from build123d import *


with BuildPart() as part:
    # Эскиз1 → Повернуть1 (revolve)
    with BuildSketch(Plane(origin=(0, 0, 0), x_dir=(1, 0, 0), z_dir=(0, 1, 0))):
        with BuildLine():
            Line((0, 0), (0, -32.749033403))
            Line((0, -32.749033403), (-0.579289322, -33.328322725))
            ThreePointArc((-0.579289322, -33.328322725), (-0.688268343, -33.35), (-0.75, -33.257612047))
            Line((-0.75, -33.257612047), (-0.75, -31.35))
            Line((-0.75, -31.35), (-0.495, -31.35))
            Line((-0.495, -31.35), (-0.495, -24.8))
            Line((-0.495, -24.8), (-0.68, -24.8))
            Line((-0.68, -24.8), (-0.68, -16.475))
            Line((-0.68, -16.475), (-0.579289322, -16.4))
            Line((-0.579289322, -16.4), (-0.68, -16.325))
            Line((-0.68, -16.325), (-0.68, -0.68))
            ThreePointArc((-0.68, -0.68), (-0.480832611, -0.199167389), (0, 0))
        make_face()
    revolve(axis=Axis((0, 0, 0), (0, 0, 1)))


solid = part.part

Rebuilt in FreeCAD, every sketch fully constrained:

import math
import FreeCAD as App
import Part
import Sketcher
from FreeCAD import Vector
Q = App.Units.Quantity

doc = App.newDocument("Part")
body = doc.addObject("PartDesign::Body", "Body")

# Sketch on XZ plane
sketch1 = body.newObject("Sketcher::SketchObject", "Sketch")
sketch1.AttachmentSupport = (doc.getObject("XZ_Plane"), [""])
sketch1.MapMode = "FlatFace"
sketch1.addGeometry([
    Part.LineSegment(Vector(0, 32.75, 0), Vector(0, 0, 0)),  # 0
    Part.ArcOfCircle(Part.Circle(Vector(0, 0.68, 0), Vector(0, 0, 1), 0.68), math.radians(-180), math.radians(-90)),  # 1
    Part.LineSegment(Vector(-0.68, 0.68, 0), Vector(-0.68, 16.32, 0)),  # 2
    Part.LineSegment(Vector(-0.68, 16.32, 0), Vector(-0.58, 16.4, 0)),  # 3
    Part.LineSegment(Vector(-0.58, 16.4, 0), Vector(-0.68, 16.48, 0)),  # 4
    Part.LineSegment(Vector(-0.68, 16.48, 0), Vector(-0.68, 24.8, 0)),  # 5
    Part.LineSegment(Vector(-0.68, 24.8, 0), Vector(-0.49, 24.8, 0)),  # 6
    Part.LineSegment(Vector(-0.49, 24.8, 0), Vector(-0.49, 31.35, 0)),  # 7
    Part.LineSegment(Vector(-0.49, 31.35, 0), Vector(-0.75, 31.35, 0)),  # 8
    Part.LineSegment(Vector(-0.75, 31.35, 0), Vector(-0.75, 33.26, 0)),  # 9
    Part.ArcOfCircle(Part.Circle(Vector(-0.65, 33.26, 0), Vector(0, 0, 1), 0.1), math.radians(45), math.radians(180)),  # 10
    Part.LineSegment(Vector(-0.58, 33.33, 0), Vector(0, 32.75, 0)),  # 11
], False)
sketch1.addConstraint([
    Sketcher.Constraint("Coincident", 0, 2, 1, 2),
    Sketcher.Constraint("Tangent", 1, 1, 2, 1),
    Sketcher.Constraint("Coincident", 2, 2, 3, 1),
    Sketcher.Constraint("Coincident", 3, 2, 4, 1),
    Sketcher.Constraint("Coincident", 4, 2, 5, 1),
    Sketcher.Constraint("Coincident", 5, 2, 6, 1),
    Sketcher.Constraint("Coincident", 6, 2, 7, 1),
    Sketcher.Constraint("Coincident", 7, 2, 8, 1),
    Sketcher.Constraint("Coincident", 8, 2, 9, 1),
    Sketcher.Constraint("Tangent", 9, 2, 10, 2),
    Sketcher.Constraint("Tangent", 10, 1, 11, 1),
    Sketcher.Constraint("Coincident", 11, 2, 0, 1),
    Sketcher.Constraint("Vertical", 0),
    Sketcher.Constraint("Vertical", 2),
    Sketcher.Constraint("Vertical", 5),
    Sketcher.Constraint("Horizontal", 6),
    Sketcher.Constraint("Vertical", 7),
    Sketcher.Constraint("Horizontal", 8),
    Sketcher.Constraint("Vertical", 9),
    Sketcher.Constraint("Coincident", 0, 2, -1, 1),
    Sketcher.Constraint("PointOnObject", 1, 3, -2),
    Sketcher.Constraint("Vertical", 2, 2, 4, 2),
    Sketcher.Constraint("Vertical", 3, 2, 10, 1),
    Sketcher.Constraint("Equal", 3, 4),
    Sketcher.Constraint("Radius", 10, Q("0.1 mm")),
    Sketcher.Constraint("Angle", 11, Q("-45 deg")),
    Sketcher.Constraint("Radius", 1, Q("0.68 mm")),
    Sketcher.Constraint("DistanceY", 7, 1, 7, 2, Q("6.55 mm")),
    Sketcher.Constraint("DistanceY", -1, 1, 3, 2, Q("16.4 mm")),
    Sketcher.Constraint("DistanceY", -1, 1, 5, 2, Q("24.8 mm")),
    Sketcher.Constraint("DistanceX", 6, 1, 6, 2, Q("0.185 mm")),
    Sketcher.Constraint("DistanceX", 8, 2, 8, 1, Q("0.255 mm")),
    Sketcher.Constraint("DistanceY", 2, 1, 2, 2, Q("15.645 mm")),
    Sketcher.Constraint("DistanceY", 0, 2, 0, 1, Q("32.749033 mm")),
])
revolution = body.newObject("PartDesign::Revolution", "Revolution")
revolution.Profile = sketch1
revolution.ReferenceAxis = (sketch1, ["V_Axis"])
revolution.Angle = 360

doc.recompute()
